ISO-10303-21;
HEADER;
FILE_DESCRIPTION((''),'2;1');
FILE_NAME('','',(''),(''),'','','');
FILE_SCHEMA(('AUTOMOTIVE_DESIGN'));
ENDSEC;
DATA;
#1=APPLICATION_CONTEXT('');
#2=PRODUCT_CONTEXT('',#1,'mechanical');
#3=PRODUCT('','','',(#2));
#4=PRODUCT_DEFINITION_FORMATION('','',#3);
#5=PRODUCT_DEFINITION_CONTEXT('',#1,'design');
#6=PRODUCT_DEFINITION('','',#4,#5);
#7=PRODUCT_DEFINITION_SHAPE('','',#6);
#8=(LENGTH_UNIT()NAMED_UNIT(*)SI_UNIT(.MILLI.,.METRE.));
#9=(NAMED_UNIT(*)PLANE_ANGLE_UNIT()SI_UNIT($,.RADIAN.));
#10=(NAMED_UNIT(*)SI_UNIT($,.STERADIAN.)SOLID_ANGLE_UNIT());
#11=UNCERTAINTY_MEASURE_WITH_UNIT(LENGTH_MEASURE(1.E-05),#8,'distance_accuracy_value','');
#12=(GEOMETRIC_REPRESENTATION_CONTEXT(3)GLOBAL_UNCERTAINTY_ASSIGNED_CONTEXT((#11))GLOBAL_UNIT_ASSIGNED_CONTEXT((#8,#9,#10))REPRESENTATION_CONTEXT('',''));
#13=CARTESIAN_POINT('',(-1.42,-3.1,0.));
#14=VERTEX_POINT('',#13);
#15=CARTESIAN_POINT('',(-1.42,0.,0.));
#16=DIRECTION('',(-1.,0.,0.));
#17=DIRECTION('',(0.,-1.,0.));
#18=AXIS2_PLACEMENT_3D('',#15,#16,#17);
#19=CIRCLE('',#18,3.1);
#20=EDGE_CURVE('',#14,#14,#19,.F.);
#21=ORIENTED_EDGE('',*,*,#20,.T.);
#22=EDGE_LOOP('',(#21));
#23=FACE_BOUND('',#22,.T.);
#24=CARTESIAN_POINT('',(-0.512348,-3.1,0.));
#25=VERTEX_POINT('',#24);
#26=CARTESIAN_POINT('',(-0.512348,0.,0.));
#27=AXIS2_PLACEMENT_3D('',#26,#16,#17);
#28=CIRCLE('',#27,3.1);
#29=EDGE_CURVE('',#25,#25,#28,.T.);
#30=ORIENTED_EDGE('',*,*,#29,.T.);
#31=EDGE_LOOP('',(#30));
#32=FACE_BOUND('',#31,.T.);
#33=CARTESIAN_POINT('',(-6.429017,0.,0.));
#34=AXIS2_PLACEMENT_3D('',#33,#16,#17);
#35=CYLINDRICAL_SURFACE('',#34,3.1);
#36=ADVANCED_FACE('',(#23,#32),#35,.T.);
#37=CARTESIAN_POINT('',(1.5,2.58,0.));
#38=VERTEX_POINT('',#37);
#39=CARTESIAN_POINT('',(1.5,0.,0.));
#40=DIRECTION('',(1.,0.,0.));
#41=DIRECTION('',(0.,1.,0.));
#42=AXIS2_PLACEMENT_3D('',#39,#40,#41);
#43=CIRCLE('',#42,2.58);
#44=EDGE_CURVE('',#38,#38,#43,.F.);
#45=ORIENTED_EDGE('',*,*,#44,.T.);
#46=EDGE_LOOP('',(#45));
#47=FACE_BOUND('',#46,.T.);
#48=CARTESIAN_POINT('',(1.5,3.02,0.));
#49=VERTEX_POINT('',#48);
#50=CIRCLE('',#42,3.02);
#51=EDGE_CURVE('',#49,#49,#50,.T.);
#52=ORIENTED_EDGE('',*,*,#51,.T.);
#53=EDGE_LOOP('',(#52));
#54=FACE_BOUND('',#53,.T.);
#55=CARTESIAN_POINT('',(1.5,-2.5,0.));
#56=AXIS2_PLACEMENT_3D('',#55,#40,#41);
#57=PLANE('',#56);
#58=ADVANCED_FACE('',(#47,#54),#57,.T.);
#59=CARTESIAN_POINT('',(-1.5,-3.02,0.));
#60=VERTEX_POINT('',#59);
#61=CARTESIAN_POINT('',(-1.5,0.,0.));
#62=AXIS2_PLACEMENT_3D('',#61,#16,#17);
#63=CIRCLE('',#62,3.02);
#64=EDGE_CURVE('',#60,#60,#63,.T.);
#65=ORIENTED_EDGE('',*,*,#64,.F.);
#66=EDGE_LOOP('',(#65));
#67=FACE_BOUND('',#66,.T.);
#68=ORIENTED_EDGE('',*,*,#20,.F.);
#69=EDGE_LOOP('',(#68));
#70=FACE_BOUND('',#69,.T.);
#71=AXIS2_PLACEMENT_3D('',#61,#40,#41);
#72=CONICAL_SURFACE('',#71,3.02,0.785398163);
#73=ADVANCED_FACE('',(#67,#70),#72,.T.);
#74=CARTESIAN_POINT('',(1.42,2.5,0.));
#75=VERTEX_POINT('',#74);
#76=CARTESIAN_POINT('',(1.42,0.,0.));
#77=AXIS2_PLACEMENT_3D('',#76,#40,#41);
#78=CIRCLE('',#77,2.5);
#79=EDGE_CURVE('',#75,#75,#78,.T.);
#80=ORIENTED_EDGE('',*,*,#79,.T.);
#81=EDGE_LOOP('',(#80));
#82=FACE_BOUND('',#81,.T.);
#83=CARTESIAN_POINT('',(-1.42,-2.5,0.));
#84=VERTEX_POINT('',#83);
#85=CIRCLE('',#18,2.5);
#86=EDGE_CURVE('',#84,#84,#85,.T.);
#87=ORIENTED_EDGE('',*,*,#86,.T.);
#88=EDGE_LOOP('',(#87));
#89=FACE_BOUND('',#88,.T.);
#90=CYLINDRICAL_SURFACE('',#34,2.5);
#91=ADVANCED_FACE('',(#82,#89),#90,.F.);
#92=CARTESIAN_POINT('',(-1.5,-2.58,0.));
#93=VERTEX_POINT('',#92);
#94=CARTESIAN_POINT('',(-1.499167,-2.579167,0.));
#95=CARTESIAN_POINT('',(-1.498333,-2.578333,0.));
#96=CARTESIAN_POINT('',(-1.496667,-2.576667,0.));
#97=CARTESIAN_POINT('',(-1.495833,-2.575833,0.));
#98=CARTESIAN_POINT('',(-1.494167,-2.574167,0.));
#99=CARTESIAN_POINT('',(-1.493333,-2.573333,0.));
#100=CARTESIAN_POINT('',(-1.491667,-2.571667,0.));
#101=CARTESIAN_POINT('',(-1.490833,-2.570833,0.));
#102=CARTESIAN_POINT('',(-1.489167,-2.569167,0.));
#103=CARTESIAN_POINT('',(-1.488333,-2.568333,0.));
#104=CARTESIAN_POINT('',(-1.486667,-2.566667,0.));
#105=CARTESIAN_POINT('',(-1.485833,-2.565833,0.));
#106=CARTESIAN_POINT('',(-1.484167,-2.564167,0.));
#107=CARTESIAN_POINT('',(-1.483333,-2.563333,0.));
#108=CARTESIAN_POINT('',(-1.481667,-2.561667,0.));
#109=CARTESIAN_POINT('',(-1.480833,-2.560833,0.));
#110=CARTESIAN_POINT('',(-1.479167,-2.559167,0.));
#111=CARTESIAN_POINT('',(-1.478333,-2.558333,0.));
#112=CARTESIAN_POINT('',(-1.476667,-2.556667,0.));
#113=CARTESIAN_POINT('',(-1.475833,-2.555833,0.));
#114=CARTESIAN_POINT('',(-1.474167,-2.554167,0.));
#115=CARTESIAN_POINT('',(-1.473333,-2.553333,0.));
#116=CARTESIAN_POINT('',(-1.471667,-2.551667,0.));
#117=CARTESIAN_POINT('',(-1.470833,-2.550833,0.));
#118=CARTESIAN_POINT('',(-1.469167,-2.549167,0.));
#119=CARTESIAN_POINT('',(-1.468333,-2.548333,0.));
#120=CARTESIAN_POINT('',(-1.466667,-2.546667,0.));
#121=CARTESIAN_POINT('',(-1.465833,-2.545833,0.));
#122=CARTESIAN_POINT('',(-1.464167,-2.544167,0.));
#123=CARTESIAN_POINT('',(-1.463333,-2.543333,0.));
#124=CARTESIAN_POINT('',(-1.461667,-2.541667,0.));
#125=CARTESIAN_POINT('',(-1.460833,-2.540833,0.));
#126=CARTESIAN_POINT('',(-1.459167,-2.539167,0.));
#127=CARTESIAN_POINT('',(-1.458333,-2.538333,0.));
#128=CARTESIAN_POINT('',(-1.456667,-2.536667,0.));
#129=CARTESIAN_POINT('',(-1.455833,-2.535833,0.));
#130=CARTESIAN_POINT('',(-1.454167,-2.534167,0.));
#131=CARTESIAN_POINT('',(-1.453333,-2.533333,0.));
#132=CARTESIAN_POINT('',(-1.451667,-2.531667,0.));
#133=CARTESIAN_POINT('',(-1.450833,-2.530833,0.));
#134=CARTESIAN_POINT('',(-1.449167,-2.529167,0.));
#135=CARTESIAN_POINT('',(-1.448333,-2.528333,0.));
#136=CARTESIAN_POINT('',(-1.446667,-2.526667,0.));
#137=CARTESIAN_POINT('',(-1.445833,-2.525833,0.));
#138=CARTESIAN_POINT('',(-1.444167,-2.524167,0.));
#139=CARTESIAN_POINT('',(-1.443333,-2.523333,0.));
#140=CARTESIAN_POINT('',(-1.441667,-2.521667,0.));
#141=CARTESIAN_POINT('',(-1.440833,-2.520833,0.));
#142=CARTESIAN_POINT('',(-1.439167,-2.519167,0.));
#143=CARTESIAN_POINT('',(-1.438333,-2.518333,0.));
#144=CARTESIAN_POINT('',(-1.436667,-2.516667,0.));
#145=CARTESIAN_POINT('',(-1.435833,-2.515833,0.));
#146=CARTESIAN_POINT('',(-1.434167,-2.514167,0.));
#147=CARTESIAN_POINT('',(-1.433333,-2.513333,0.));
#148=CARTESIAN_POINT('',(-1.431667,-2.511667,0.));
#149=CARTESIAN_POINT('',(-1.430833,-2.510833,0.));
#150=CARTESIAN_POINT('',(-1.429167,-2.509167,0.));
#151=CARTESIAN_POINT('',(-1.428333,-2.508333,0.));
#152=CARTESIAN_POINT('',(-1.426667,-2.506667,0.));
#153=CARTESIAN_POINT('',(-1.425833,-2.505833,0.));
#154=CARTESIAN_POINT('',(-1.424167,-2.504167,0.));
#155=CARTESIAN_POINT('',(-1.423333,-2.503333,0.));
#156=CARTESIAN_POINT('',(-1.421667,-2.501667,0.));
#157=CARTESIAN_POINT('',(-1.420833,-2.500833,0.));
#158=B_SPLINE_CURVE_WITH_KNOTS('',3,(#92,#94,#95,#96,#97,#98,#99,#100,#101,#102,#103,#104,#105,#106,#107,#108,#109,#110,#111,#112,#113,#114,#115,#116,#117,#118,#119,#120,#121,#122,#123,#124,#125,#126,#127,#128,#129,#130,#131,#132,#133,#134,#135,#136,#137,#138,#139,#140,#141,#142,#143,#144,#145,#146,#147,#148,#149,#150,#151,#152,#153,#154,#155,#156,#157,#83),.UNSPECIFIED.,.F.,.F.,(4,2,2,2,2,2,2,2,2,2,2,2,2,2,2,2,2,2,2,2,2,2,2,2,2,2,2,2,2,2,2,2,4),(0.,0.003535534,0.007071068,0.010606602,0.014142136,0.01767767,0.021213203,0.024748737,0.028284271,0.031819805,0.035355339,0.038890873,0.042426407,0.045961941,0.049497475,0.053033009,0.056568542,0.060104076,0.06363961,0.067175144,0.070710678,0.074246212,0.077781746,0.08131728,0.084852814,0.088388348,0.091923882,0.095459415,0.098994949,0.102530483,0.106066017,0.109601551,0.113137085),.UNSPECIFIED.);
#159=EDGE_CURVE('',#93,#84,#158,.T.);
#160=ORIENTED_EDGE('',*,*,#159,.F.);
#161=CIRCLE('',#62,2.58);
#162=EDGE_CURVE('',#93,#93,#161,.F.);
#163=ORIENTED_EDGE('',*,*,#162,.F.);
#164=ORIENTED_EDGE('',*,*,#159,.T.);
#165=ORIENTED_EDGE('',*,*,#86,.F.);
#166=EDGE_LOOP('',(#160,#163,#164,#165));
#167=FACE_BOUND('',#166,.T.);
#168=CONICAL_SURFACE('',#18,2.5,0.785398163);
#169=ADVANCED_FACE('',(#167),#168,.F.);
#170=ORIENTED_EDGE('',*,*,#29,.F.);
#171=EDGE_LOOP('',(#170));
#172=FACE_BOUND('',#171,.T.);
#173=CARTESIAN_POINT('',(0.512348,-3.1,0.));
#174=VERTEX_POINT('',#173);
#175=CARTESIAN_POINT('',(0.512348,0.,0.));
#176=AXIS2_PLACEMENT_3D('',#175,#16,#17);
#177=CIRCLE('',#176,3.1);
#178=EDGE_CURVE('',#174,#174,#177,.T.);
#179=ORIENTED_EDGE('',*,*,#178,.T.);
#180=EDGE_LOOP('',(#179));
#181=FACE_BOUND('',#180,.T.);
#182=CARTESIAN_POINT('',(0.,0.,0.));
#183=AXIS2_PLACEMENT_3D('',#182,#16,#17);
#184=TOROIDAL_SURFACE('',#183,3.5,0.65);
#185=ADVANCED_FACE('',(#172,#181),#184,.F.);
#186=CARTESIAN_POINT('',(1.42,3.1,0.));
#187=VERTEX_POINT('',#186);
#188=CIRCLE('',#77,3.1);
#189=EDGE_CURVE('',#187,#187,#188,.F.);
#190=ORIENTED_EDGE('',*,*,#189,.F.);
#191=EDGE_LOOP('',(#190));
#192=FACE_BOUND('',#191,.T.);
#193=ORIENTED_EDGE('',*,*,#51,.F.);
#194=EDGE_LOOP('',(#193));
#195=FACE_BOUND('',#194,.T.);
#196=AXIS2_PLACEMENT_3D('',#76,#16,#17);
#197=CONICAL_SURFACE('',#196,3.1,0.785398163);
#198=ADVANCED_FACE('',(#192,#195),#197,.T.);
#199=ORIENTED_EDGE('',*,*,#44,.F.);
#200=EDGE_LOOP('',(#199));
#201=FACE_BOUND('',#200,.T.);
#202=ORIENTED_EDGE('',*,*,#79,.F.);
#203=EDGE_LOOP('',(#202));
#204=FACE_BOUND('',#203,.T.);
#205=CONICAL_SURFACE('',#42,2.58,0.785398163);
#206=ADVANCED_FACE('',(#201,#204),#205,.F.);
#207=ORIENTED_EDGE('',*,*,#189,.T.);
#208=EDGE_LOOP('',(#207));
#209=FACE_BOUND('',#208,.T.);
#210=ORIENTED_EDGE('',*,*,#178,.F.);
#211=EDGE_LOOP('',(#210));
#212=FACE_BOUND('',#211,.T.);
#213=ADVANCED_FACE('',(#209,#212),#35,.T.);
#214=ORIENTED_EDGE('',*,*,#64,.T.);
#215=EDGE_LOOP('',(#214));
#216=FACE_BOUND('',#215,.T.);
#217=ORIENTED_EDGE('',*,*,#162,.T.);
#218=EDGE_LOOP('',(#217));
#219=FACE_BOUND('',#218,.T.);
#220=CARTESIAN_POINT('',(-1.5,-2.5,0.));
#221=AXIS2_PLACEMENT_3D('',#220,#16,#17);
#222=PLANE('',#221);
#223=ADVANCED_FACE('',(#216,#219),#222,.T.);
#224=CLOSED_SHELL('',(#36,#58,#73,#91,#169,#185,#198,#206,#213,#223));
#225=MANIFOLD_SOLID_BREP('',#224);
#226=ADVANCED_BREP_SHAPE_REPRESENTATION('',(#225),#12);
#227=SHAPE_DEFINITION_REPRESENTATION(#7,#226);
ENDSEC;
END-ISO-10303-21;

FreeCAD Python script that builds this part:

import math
import FreeCAD as App
import Part
import Sketcher


def edges_at(feature, points):
    """Names of the edges that pass closest to the given points."""
    edges = feature.Shape.Edges
    near = lambda p: min(range(len(edges)), key=lambda i: edges[i].distToShape(Part.Vertex(*p))[0])
    return sorted({f"Edge{near(p) + 1}" for p in points})

doc = App.newDocument("Part")
params = doc.addObject("Spreadsheet::Sheet", "Params")
for row, (alias, value) in enumerate([
    ("sketch1_width", "3 mm"),
    ("sketch1_radius", "0.65 mm"),
    ("sketch1_height", "0.6 mm"),
    ("revolution_angle", "360 deg"),
    ("chamfer_size", "0.08 mm"),
], start=1):
    params.set(f"A{row}", alias)
    params.set(f"B{row}", "=" + value)
    params.setAlias(f"B{row}", alias)

body = doc.addObject("PartDesign::Body", "Body")

# Sketch on XY plane
sketch1 = doc.addObject("Sketcher::SketchObject", "Sketch")
body.addObject(sketch1)
sketch1.AttachmentSupport = (doc.XY_Plane, [""])
sketch1.MapMode = "FlatFace"
sketch1.addGeometry([
    Part.LineSegment(App.Vector(0.5, -3.1, 0), App.Vector(1.5, -3.1, 0)),  # 0
    Part.LineSegment(App.Vector(1.5, -3.1, 0), App.Vector(1.5, -2.5, 0)),  # 1
    Part.LineSegment(App.Vector(1.5, -2.5, 0), App.Vector(-1.5, -2.5, 0)),  # 2
    Part.LineSegment(App.Vector(-1.5, -2.5, 0), App.Vector(-1.5, -3.1, 0)),  # 3
    Part.LineSegment(App.Vector(-1.5, -3.1, 0), App.Vector(-0.5, -3.1, 0)),  # 4
    Part.ArcOfCircle(Part.Circle(App.Vector(0, -3.5, 0), App.Vector(0, 0, 1), 0.6), math.radians(38), math.radians(142)),  # 5
], False)
sketch1.addConstraint([
    Sketcher.Constraint("Coincident", 0, 2, 1, 1),
    Sketcher.Constraint("Coincident", 1, 2, 2, 1),
    Sketcher.Constraint("Coincident", 2, 2, 3, 1),
    Sketcher.Constraint("Coincident", 3, 2, 4, 1),
    Sketcher.Constraint("Coincident", 4, 2, 5, 2),
    Sketcher.Constraint("Coincident", 5, 1, 0, 1),
    Sketcher.Constraint("Horizontal", 0),
    Sketcher.Constraint("Vertical", 1),
    Sketcher.Constraint("Horizontal", 2),
    Sketcher.Constraint("Vertical", 3),
    Sketcher.Constraint("Horizontal", 4),
    Sketcher.Constraint("Symmetric", 0, 2, 3, 2, -2),
    Sketcher.Constraint("PointOnObject", 5, 3, -2),
    Sketcher.Constraint("DistanceX", 2, 2, 2, 1, 3.0),
    Sketcher.Constraint("Radius", 5, 0.65),
    Sketcher.Constraint("DistanceY", 1, 1, 1, 2, 0.6),
    Sketcher.Constraint("DistanceY", 5, 3, 1, 2, 1.0),
    Sketcher.Constraint("DistanceY", 5, 3, -1, 1, 3.5),
])
sketch1.setExpression("Constraints[13]", "Params.sketch1_width")
sketch1.setExpression("Constraints[14]", "Params.sketch1_radius")
sketch1.setExpression("Constraints[15]", "Params.sketch1_height")
revolution = doc.addObject("PartDesign::Revolution", "Revolution")
body.addObject(revolution)
revolution.Profile = sketch1
revolution.ReferenceAxis = (sketch1, ["H_Axis"])
revolution.setExpression("Angle", "Params.revolution_angle")
doc.recompute()

chamfer = doc.addObject("PartDesign::Chamfer", "Chamfer")
body.addObject(chamfer)
chamfer.Base = (revolution, edges_at(revolution, [
    (1.5, 3.1, 0),
    (1.5, 2.5, 0),
    (-1.5, 2.5, 0),
    (-1.5, 3.1, 0),
]))
chamfer.setExpression("Size", "Params.chamfer_size")

doc.recompute()
